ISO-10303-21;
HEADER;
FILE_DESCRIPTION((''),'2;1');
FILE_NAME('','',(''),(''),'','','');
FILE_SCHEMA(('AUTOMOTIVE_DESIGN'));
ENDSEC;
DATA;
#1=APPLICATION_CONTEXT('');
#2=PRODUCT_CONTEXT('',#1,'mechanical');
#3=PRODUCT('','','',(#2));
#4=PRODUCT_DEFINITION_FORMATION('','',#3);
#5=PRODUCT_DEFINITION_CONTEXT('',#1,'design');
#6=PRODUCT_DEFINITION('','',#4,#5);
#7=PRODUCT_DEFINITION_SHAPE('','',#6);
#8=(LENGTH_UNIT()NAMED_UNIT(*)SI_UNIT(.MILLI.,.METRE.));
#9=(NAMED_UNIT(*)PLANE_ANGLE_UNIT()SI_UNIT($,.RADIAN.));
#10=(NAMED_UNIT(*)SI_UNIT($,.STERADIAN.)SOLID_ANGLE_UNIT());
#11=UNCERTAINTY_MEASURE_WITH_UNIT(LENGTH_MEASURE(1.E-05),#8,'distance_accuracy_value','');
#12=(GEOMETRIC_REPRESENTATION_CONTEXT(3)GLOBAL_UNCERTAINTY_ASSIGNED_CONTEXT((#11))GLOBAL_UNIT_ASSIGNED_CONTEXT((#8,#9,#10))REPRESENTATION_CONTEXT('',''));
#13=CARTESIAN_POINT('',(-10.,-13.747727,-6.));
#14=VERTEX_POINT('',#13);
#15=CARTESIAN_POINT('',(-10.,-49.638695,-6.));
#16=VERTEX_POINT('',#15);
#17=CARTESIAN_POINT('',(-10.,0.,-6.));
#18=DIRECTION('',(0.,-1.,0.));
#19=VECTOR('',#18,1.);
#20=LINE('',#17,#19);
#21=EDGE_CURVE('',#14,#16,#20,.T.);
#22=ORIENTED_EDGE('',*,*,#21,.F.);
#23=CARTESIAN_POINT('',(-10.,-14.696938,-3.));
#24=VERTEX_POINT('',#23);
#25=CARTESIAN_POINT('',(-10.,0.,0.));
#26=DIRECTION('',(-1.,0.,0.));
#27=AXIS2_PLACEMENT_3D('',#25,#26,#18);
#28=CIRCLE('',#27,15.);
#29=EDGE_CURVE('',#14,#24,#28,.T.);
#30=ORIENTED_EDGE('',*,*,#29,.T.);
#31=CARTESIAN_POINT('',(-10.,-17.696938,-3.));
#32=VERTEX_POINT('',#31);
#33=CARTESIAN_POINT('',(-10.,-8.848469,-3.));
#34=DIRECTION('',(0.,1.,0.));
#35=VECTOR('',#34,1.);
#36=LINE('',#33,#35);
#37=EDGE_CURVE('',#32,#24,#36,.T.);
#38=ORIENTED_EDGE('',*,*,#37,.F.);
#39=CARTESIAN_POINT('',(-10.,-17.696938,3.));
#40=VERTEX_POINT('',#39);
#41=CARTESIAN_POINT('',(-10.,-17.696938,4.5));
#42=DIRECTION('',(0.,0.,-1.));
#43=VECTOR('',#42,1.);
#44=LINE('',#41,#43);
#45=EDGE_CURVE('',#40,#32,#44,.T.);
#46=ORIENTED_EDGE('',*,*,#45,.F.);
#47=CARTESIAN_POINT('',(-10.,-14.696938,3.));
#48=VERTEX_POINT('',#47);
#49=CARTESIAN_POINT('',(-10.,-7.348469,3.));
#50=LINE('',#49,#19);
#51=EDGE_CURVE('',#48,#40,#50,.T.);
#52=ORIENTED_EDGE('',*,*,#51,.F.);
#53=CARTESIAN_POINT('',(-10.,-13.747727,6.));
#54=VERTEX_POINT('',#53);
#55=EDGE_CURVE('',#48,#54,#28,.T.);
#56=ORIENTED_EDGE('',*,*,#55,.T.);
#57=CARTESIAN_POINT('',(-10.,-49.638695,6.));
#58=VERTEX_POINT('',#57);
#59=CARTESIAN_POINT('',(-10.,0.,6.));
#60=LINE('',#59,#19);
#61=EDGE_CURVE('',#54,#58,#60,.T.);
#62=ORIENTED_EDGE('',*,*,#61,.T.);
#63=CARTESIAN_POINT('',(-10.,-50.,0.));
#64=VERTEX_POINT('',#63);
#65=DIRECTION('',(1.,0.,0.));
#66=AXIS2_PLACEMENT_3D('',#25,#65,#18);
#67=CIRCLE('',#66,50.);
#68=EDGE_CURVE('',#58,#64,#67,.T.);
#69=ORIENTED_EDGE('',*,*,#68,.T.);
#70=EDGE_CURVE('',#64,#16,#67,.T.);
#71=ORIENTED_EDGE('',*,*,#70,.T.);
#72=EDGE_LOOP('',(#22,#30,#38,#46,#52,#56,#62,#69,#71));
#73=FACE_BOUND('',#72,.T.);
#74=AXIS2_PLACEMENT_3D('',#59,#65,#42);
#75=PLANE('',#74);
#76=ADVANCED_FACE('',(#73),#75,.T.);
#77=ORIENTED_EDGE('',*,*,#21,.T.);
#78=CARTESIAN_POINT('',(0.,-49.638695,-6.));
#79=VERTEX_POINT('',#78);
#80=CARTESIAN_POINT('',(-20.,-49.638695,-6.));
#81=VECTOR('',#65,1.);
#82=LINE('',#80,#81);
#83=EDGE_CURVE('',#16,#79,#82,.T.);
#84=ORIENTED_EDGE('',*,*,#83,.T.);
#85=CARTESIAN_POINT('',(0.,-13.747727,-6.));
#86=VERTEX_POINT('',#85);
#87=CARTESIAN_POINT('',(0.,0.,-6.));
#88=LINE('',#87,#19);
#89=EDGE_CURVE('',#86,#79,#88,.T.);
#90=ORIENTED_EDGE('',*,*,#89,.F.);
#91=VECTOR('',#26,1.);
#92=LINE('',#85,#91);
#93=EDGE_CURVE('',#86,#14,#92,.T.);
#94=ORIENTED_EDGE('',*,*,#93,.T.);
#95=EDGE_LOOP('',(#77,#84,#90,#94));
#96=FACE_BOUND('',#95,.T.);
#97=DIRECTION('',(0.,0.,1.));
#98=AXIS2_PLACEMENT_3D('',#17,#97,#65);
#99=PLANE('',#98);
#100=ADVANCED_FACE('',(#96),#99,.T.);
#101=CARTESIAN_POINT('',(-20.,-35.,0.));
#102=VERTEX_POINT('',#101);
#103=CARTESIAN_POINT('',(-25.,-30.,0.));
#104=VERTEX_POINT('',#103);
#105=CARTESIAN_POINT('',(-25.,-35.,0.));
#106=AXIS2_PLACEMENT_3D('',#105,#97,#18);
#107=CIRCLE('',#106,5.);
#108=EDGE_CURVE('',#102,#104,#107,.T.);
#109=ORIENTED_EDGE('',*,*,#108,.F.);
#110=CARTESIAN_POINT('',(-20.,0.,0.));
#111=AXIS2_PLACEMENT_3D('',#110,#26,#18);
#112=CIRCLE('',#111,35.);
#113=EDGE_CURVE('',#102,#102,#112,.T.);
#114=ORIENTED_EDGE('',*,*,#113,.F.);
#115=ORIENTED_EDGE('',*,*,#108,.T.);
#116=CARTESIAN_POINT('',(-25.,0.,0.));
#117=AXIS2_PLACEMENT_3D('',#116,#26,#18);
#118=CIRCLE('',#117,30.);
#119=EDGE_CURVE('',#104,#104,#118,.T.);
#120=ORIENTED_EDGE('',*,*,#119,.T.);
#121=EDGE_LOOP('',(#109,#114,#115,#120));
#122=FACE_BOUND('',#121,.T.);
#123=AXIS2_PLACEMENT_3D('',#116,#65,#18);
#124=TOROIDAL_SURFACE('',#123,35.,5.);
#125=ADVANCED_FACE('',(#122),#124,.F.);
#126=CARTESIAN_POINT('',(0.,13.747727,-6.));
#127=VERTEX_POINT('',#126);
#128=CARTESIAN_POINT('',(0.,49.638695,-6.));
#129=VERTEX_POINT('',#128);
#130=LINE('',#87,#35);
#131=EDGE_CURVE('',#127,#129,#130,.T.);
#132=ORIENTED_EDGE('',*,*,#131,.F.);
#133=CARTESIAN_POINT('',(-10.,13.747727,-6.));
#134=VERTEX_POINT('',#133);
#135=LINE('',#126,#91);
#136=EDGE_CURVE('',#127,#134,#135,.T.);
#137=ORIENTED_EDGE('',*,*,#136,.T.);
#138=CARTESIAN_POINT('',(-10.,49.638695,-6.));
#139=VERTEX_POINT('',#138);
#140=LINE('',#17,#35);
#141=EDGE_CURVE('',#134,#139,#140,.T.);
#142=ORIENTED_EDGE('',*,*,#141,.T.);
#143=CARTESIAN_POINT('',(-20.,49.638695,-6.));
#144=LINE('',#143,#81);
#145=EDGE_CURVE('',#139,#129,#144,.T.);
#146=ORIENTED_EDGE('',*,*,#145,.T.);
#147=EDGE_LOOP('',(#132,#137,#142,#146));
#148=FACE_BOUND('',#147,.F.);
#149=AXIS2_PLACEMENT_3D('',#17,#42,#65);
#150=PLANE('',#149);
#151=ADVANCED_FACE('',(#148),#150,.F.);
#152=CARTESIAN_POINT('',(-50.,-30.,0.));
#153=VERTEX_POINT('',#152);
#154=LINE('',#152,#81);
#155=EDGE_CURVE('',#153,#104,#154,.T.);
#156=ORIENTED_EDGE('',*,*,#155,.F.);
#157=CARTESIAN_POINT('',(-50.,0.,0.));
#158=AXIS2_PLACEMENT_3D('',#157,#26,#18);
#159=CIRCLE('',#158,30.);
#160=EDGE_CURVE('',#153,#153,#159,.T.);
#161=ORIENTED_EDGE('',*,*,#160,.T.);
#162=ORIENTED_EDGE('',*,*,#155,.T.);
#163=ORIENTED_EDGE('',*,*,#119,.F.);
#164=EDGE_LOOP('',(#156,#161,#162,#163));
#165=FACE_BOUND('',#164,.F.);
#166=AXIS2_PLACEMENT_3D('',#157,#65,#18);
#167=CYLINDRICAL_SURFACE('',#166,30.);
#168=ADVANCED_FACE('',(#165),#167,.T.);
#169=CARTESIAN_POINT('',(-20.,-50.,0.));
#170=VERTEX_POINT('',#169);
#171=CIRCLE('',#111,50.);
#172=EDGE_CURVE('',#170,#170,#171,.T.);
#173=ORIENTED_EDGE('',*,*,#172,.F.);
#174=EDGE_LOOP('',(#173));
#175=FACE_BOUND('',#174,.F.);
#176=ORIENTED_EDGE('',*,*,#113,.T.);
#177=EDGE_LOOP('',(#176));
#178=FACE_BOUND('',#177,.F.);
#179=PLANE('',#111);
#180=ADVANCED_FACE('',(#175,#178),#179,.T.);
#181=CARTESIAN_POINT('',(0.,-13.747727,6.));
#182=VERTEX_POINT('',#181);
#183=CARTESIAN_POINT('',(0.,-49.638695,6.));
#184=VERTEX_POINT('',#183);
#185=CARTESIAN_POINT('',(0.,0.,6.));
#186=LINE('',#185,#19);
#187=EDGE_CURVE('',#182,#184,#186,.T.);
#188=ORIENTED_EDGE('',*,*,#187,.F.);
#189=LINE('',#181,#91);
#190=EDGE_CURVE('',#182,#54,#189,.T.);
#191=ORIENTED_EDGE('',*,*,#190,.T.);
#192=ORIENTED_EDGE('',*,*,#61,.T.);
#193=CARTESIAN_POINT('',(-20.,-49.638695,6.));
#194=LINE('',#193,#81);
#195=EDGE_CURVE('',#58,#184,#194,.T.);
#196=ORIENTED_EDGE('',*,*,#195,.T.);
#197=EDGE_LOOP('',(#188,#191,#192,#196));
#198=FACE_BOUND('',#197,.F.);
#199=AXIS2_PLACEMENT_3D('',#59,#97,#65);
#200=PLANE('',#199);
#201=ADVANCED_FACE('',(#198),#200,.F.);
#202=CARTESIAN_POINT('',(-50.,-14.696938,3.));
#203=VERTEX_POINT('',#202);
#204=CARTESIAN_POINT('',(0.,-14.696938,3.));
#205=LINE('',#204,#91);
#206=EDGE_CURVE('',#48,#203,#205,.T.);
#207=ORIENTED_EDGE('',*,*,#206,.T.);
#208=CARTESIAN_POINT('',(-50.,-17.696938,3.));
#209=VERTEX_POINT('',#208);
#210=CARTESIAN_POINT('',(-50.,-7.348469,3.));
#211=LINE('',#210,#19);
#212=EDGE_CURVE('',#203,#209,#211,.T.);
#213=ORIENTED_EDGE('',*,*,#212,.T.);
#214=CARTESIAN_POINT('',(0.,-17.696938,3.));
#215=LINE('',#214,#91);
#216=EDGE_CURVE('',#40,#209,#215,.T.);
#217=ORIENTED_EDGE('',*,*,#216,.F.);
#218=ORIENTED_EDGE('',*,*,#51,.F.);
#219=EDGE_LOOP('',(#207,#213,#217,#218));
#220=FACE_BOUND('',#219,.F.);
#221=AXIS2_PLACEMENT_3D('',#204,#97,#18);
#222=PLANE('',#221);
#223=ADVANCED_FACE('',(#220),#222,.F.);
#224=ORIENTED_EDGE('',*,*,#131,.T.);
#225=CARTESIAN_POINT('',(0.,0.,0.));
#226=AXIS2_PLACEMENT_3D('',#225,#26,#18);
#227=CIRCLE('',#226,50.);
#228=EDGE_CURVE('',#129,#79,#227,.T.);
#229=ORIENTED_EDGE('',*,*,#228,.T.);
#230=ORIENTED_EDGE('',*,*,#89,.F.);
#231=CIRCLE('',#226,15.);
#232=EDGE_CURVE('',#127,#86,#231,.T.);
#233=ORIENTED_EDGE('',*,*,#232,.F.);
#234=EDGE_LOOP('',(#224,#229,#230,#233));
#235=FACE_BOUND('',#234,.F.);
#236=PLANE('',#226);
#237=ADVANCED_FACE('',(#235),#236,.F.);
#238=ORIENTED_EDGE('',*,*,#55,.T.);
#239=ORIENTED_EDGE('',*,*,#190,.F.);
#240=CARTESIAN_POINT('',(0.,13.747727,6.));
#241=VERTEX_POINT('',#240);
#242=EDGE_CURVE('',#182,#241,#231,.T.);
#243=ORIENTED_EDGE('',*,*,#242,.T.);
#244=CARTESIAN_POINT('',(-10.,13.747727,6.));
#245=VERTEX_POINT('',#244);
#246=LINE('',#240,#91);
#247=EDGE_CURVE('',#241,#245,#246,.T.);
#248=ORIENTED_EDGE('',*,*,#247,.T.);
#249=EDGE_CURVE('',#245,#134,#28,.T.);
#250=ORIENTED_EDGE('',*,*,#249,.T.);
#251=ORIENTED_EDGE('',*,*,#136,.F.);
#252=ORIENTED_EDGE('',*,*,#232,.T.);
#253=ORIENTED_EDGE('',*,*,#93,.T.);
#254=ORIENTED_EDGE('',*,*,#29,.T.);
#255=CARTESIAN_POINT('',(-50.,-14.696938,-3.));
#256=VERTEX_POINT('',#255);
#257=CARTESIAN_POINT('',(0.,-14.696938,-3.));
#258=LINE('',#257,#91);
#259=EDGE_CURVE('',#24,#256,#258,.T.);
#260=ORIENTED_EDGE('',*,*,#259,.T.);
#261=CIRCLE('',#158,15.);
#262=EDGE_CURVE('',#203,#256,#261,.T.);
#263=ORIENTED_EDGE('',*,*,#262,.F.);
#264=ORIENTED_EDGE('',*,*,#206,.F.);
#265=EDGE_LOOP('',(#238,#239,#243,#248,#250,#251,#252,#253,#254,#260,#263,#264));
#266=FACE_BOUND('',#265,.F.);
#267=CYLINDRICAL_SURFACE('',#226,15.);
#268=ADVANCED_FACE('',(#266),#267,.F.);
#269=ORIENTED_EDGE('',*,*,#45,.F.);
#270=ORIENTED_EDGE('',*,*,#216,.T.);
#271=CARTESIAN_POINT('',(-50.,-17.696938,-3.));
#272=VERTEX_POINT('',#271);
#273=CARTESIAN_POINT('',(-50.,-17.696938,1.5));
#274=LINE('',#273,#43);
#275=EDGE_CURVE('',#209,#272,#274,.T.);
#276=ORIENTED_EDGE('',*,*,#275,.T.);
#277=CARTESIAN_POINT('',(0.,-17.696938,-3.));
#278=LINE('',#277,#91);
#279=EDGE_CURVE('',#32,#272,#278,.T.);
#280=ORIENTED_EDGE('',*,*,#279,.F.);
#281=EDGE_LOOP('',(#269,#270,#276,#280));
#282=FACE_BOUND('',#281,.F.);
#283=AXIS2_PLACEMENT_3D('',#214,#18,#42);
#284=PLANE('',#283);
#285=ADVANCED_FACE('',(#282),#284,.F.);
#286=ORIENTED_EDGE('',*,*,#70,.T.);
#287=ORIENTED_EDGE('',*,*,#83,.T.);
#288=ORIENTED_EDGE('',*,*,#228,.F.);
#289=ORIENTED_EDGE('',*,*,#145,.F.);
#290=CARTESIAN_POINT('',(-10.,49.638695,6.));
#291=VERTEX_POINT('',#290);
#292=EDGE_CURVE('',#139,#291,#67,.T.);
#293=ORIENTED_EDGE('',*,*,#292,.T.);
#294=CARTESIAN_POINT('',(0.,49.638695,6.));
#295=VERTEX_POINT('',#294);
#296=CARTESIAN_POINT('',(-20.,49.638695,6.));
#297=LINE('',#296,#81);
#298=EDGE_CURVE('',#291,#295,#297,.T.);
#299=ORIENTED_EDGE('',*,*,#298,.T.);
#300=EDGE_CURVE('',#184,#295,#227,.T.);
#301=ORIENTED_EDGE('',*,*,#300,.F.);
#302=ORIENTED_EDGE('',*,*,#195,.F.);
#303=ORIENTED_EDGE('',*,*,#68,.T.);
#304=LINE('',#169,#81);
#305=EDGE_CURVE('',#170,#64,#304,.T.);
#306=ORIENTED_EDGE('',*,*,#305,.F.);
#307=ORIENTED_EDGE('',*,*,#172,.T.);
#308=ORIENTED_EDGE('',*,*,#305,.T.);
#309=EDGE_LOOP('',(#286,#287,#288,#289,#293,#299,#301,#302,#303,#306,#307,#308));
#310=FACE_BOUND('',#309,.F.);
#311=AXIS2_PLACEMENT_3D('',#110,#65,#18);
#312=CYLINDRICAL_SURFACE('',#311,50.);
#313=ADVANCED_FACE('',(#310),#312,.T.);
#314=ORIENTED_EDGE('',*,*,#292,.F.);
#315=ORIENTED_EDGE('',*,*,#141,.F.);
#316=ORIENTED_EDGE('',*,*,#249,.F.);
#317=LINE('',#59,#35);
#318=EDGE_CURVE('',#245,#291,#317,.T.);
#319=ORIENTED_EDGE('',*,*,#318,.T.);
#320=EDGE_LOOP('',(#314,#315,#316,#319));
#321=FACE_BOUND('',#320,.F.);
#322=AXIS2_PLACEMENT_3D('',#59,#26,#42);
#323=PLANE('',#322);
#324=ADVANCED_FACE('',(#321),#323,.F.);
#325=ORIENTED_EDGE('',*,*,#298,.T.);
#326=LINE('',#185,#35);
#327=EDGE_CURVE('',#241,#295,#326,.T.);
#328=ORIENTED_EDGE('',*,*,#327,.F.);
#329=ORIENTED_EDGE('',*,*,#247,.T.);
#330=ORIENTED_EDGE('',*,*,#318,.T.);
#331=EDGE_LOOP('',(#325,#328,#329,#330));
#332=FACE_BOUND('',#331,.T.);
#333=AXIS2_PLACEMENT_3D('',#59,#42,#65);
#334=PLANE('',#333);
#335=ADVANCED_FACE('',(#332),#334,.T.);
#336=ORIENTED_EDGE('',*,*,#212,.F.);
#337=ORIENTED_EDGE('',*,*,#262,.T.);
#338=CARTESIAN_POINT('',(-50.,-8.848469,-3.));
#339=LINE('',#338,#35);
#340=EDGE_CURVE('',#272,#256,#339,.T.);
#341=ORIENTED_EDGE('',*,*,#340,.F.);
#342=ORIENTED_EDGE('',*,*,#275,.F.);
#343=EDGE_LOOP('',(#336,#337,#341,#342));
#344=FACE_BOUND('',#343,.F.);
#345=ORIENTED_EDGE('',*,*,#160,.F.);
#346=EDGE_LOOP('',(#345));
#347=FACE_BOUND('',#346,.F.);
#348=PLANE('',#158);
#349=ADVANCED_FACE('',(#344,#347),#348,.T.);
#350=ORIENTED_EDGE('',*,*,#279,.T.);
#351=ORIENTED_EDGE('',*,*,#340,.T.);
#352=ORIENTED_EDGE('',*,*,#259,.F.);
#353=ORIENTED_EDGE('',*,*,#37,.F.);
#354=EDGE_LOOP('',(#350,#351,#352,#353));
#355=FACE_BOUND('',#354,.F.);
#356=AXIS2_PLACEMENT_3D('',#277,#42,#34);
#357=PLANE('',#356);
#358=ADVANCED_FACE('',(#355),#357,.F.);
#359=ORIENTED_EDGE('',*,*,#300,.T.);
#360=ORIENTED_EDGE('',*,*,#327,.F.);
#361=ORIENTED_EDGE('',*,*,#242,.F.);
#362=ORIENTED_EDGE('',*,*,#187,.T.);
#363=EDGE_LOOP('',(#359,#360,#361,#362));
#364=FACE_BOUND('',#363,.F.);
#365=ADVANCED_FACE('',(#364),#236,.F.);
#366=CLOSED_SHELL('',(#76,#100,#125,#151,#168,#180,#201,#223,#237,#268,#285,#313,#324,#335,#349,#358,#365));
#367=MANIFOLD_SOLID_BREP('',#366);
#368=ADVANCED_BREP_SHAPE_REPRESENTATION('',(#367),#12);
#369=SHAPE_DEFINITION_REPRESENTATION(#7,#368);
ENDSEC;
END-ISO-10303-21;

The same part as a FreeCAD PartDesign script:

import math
import FreeCAD as App
import Part
import Sketcher
from FreeCAD import Vector


def edges_at(feature, points):
    """Names of the edges that pass closest to the given points."""
    edges = feature.Shape.Edges
    near = lambda p: min(range(len(edges)), key=lambda i: edges[i].distToShape(Part.Vertex(*p))[0])
    return sorted({f"Edge{near(p) + 1}" for p in points})


def add_polygon(sketch, points):
    """Adds a closed chain of lines whose ends are joined by coincident constraints."""
    first, n = sketch.GeometryCount, len(points)
    for a, b in zip(points, points[1:] + points[:1]):
        sketch.addGeometry(Part.LineSegment(App.Vector(*a, 0), App.Vector(*b, 0)), False)
    for i in range(n):
        sketch.addConstraint(Sketcher.Constraint("Coincident", first + i, 2, first + (i + 1) % n, 1))

doc = App.newDocument("Part")
body = doc.addObject("PartDesign::Body", "Body")

# Sketch on XY plane
sketch1 = body.newObject("Sketcher::SketchObject", "Sketch")
sketch1.AttachmentSupport = (doc.getObject("XY_Plane"), [""])
sketch1.MapMode = "FlatFace"
add_polygon(sketch1, [(0, -50), (0, -15), (-50, -15), (-50, -30), (-20, -30), (-20, -50)])  # lines 0-5
sketch1.addConstraint(Sketcher.Constraint("Vertical", 0))
sketch1.addConstraint(Sketcher.Constraint("Horizontal", 1))
sketch1.addConstraint(Sketcher.Constraint("Vertical", 2))
sketch1.addConstraint(Sketcher.Constraint("Horizontal", 3))
sketch1.addConstraint(Sketcher.Constraint("Vertical", 4))
sketch1.addConstraint(Sketcher.Constraint("Horizontal", 5))
sketch1.addConstraint(Sketcher.Constraint("PointOnObject", 0, 2, -2))
sketch1.addConstraint(Sketcher.Constraint("Equal", 5, 4))
sketch1.addConstraint(Sketcher.Constraint("DistanceX", 1, 2, 1, 1, 50.0))
sketch1.addConstraint(Sketcher.Constraint("DistanceX", 3, 1, 3, 2, 30.0))
sketch1.addConstraint(Sketcher.Constraint("DistanceY", 0, 1, 0, 2, 35.0))
sketch1.addConstraint(Sketcher.Constraint("DistanceY", 0, 2, -1, 1, 15.0))
revolution = body.newObject("PartDesign::Revolution", "Revolution")
revolution.Profile = sketch1
revolution.ReferenceAxis = (sketch1, ["H_Axis"])
revolution.Angle = 360

# Sketch on XZ plane
sketch2 = body.newObject("Sketcher::SketchObject", "Sketch001")
sketch2.AttachmentSupport = (doc.getObject("XZ_Plane"), [""])
sketch2.MapMode = "FlatFace"
add_polygon(sketch2, [(-10, 6), (-10, -6), (0, -6), (0, 6)])  # lines 0-3
sketch2.addConstraint(Sketcher.Constraint("Vertical", 0))
sketch2.addConstraint(Sketcher.Constraint("Horizontal", 1))
sketch2.addConstraint(Sketcher.Constraint("Vertical", 2))
sketch2.addConstraint(Sketcher.Constraint("Horizontal", 3))
sketch2.addConstraint(Sketcher.Constraint("Symmetric", 1, 2, 2, 2, -1, 1))
sketch2.addConstraint(Sketcher.Constraint("DistanceX", 1, 1, 1, 2, 10.0))
sketch2.addConstraint(Sketcher.Constraint("DistanceY", 0, 2, 0, 1, 12.0))
pocket1 = body.newObject("PartDesign::Pocket", "Pocket")
pocket1.Profile = sketch2
pocket1.Type = "ThroughAll"
pocket1.Midplane = True

# Sketch on YZ plane
sketch3 = body.newObject("Sketcher::SketchObject", "Sketch002")
sketch3.AttachmentSupport = (doc.getObject("YZ_Plane"), [""])
sketch3.MapMode = "FlatFace"
sketch3.addGeometry(Part.ArcOfCircle(Part.Circle(Vector(0.000022, -0.000004, 0), Vector(0, 0, 1), 15.000022), math.radians(168.463041), math.radians(179.999983)), False)
sketch3.addGeometry(Part.LineSegment(Vector(-14.696938, 3, 0), Vector(-17.696938, 3, 0)), False)
sketch3.addGeometry(Part.LineSegment(Vector(-17.696938, 3, 0), Vector(-17.696938, -3, 0)), False)
sketch3.addGeometry(Part.LineSegment(Vector(-17.696938, -3, 0), Vector(-14.696938, -3, 0)), False)
sketch3.addGeometry(Part.ArcOfCircle(Part.Circle(Vector(0.000022, 0.000004, 0), Vector(0, 0, 1), 15.000022), math.radians(-179.999983), math.radians(-168.463041)), False)
sketch3.addConstraint(Sketcher.Constraint("Coincident", 0, 1, 1, 1))
sketch3.addConstraint(Sketcher.Constraint("Coincident", 1, 2, 2, 1))
sketch3.addConstraint(Sketcher.Constraint("Coincident", 2, 2, 3, 1))
sketch3.addConstraint(Sketcher.Constraint("Coincident", 3, 2, 4, 2))
sketch3.addConstraint(Sketcher.Constraint("Tangent", 4, 1, 0, 2))
sketch3.addConstraint(Sketcher.Constraint("Horizontal", 1))
sketch3.addConstraint(Sketcher.Constraint("Vertical", 2))
sketch3.addConstraint(Sketcher.Constraint("Horizontal", 3))
sketch3.addConstraint(Sketcher.Constraint("Equal", 0, 4))
sketch3.addConstraint(Sketcher.Constraint("Symmetric", 0, 1, 3, 2, -1))
sketch3.addConstraint(Sketcher.Constraint("PointOnObject", 4, 1, -1))
sketch3.addConstraint(Sketcher.Constraint("DistanceX", 1, 2, 1, 1, 3.0))
sketch3.addConstraint(Sketcher.Constraint("DistanceY", 2, 2, 2, 1, 6.0))
sketch3.addConstraint(Sketcher.Constraint("DistanceX", 4, 1, -1, 1, 15.0))
sketch3.addConstraint(Sketcher.Constraint("Radius", 0, 15.000022))
pocket2 = body.newObject("PartDesign::Pocket", "Pocket001")
pocket2.Profile = sketch3
pocket2.Length = 100
doc.recompute()

fillet = body.newObject("PartDesign::Fillet", "Fillet")
fillet.Base = (pocket2, edges_at(pocket2, [(-20, 30, 0)]))
fillet.Radius = 5

doc.recompute()
